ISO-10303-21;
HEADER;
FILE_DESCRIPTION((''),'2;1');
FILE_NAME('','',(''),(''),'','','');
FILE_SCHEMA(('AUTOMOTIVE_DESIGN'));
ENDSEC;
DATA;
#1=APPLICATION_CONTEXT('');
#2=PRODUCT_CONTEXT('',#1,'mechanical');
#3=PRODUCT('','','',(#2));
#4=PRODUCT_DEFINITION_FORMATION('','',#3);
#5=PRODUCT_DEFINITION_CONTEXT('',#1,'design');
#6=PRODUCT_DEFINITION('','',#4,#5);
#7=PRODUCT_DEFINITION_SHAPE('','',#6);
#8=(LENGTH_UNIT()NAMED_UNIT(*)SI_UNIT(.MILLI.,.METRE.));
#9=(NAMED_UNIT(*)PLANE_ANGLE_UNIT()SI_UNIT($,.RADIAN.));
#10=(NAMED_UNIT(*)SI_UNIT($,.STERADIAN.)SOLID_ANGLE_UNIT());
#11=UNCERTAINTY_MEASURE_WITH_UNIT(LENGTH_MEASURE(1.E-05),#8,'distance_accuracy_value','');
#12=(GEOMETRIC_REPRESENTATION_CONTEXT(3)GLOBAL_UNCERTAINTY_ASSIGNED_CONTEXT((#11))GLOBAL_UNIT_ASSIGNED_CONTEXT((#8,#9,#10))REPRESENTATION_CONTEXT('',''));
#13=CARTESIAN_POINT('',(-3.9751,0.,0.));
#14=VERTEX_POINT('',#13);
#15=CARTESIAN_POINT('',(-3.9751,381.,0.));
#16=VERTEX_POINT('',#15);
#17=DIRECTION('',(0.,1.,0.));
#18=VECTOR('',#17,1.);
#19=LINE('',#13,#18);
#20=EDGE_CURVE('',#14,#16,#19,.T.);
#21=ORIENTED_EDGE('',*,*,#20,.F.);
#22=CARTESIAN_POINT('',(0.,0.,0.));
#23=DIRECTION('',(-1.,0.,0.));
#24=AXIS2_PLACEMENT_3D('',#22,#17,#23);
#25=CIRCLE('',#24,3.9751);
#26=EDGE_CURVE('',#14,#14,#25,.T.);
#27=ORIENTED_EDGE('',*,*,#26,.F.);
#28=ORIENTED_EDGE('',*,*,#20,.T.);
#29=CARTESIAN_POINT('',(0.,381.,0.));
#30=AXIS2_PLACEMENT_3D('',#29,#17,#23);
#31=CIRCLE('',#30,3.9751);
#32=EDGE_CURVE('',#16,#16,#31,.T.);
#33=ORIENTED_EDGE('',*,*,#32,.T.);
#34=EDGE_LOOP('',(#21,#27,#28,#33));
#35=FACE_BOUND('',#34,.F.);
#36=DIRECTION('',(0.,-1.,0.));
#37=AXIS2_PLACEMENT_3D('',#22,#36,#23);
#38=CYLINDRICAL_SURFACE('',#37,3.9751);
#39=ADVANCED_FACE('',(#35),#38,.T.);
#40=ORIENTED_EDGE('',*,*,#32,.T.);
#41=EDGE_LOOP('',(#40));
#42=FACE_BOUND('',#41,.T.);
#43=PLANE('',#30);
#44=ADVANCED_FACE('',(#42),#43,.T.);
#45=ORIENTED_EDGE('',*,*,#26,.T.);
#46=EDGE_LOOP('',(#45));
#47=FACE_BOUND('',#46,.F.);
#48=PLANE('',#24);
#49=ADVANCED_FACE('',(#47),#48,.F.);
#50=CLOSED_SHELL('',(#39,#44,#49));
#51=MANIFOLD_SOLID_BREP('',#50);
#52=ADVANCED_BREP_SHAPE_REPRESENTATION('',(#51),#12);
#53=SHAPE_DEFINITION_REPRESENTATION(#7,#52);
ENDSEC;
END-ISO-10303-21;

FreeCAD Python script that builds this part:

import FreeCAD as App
import Part
import Sketcher

V = App.Vector
Q = App.Units.Quantity

doc = App.newDocument("Part")
params = doc.addObject("Spreadsheet::Sheet", "Params")
for row, (alias, value) in enumerate([
    ("sketch1_diameter", "0.313 in"),
    ("pad1_length", "15 in"),
], start=1):
    params.set(f"A{row}", alias)
    params.set(f"B{row}", "=" + value)
    params.setAlias(f"B{row}", alias)

body = doc.addObject("PartDesign::Body", "Body")

# Sketch on XZ plane
sketch1 = body.newObject("Sketcher::SketchObject", "Sketch")
sketch1.AttachmentSupport = (doc.getObject("XZ_Plane"), [""])
sketch1.MapMode = "FlatFace"
sketch1.addGeometry(Part.Circle(V(0, 0, 0), V(0, 0, 1), 4), False)
sketch1.addConstraint(Sketcher.Constraint("Coincident", 0, 3, -1, 1))
sketch1.addConstraint(Sketcher.Constraint("Diameter", 0, Q("0.313 in")))
sketch1.setExpression("Constraints[1]", "Params.sketch1_diameter")
pad1 = body.newObject("PartDesign::Pad", "Pad")
pad1.Profile = sketch1
pad1.setExpression("Length", "Params.pad1_length")
pad1.Reversed = True

doc.recompute()
